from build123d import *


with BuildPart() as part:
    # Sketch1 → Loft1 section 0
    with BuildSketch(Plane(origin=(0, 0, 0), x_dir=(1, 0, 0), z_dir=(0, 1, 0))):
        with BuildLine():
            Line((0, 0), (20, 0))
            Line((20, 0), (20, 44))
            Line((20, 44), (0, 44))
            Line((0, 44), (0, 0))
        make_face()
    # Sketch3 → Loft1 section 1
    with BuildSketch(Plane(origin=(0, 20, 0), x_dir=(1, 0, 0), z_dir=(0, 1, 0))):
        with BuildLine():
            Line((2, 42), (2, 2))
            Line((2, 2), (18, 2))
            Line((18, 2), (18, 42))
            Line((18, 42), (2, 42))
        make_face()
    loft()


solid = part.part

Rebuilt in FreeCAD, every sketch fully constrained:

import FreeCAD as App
import Part
import Sketcher
Q = App.Units.Quantity


def add_polygon(sketch, points):
    """Adds a closed chain of lines whose ends are joined by coincident constraints."""
    first, n = sketch.GeometryCount, len(points)
    for a, b in zip(points, points[1:] + points[:1]):
        sketch.addGeometry(Part.LineSegment(App.Vector(*a, 0), App.Vector(*b, 0)), False)
    for i in range(n):
        sketch.addConstraint(Sketcher.Constraint("Coincident", first + i, 2, first + (i + 1) % n, 1))

doc = App.newDocument("Part")
params = doc.addObject("Spreadsheet::Sheet", "Params")
for row, (alias, value) in enumerate([
    ("sketch1_width", "20 mm"),
    ("sketch1_height", "44 mm"),
    ("sketch2_width", "16 mm"),
    ("sketch2_height", "40 mm"),
], start=1):
    params.set(f"A{row}", alias)
    params.set(f"B{row}", "=" + value)
    params.setAlias(f"B{row}", alias)

body = doc.addObject("PartDesign::Body", "Body")

sketch1 = doc.addObject("Sketcher::SketchObject", "Sketch")
body.addObject(sketch1)
sketch1.AttachmentSupport = (doc.XZ_Plane, [""])
sketch1.MapMode = "FlatFace"
add_polygon(sketch1, [(0, 0), (20, 0), (20, -44), (0, -44)])
sketch1.addConstraint([
    Sketcher.Constraint("Horizontal", 0),
    Sketcher.Constraint("Vertical", 1),
    Sketcher.Constraint("Horizontal", 2),
    Sketcher.Constraint("Vertical", 3),
    Sketcher.Constraint("Coincident", 3, 2, -1, 1),
    Sketcher.Constraint("DistanceX", 0, 1, 0, 2, Q("20 mm")),
    Sketcher.Constraint("DistanceY", 1, 2, 1, 1, Q("44 mm")),
])
sketch1.setExpression("Constraints[9]", "Params.sketch1_width")
sketch1.setExpression("Constraints[10]", "Params.sketch1_height")

sketch2 = doc.addObject("Sketcher::SketchObject", "Sketch001")
body.addObject(sketch2)
sketch2.AttachmentSupport = (doc.XZ_Plane, [""])
sketch2.MapMode = "FlatFace"
sketch2.AttachmentOffset = App.Placement(App.Vector(0, 0, -20), App.Rotation())
add_polygon(sketch2, [(2, -42), (2, -2), (18, -2), (18, -42)])
sketch2.addConstraint([
    Sketcher.Constraint("Vertical", 0),
    Sketcher.Constraint("Horizontal", 1),
    Sketcher.Constraint("Vertical", 2),
    Sketcher.Constraint("Horizontal", 3),
    Sketcher.Constraint("DistanceX", 1, 1, 1, 2, Q("16 mm")),
    Sketcher.Constraint("DistanceY", 0, 1, 0, 2, Q("40 mm")),
    Sketcher.Constraint("DistanceX", -1, 1, 0, 2, Q("2 mm")),
    Sketcher.Constraint("DistanceY", 0, 2, -1, 1, Q("2 mm")),
])
sketch2.setExpression("Constraints[8]", "Params.sketch2_width")
sketch2.setExpression("Constraints[9]", "Params.sketch2_height")

additiveloft = doc.addObject("PartDesign::AdditiveLoft", "AdditiveLoft")
body.addObject(additiveloft)
additiveloft.Profile = sketch1
additiveloft.Sections = [sketch2]

doc.recompute()
